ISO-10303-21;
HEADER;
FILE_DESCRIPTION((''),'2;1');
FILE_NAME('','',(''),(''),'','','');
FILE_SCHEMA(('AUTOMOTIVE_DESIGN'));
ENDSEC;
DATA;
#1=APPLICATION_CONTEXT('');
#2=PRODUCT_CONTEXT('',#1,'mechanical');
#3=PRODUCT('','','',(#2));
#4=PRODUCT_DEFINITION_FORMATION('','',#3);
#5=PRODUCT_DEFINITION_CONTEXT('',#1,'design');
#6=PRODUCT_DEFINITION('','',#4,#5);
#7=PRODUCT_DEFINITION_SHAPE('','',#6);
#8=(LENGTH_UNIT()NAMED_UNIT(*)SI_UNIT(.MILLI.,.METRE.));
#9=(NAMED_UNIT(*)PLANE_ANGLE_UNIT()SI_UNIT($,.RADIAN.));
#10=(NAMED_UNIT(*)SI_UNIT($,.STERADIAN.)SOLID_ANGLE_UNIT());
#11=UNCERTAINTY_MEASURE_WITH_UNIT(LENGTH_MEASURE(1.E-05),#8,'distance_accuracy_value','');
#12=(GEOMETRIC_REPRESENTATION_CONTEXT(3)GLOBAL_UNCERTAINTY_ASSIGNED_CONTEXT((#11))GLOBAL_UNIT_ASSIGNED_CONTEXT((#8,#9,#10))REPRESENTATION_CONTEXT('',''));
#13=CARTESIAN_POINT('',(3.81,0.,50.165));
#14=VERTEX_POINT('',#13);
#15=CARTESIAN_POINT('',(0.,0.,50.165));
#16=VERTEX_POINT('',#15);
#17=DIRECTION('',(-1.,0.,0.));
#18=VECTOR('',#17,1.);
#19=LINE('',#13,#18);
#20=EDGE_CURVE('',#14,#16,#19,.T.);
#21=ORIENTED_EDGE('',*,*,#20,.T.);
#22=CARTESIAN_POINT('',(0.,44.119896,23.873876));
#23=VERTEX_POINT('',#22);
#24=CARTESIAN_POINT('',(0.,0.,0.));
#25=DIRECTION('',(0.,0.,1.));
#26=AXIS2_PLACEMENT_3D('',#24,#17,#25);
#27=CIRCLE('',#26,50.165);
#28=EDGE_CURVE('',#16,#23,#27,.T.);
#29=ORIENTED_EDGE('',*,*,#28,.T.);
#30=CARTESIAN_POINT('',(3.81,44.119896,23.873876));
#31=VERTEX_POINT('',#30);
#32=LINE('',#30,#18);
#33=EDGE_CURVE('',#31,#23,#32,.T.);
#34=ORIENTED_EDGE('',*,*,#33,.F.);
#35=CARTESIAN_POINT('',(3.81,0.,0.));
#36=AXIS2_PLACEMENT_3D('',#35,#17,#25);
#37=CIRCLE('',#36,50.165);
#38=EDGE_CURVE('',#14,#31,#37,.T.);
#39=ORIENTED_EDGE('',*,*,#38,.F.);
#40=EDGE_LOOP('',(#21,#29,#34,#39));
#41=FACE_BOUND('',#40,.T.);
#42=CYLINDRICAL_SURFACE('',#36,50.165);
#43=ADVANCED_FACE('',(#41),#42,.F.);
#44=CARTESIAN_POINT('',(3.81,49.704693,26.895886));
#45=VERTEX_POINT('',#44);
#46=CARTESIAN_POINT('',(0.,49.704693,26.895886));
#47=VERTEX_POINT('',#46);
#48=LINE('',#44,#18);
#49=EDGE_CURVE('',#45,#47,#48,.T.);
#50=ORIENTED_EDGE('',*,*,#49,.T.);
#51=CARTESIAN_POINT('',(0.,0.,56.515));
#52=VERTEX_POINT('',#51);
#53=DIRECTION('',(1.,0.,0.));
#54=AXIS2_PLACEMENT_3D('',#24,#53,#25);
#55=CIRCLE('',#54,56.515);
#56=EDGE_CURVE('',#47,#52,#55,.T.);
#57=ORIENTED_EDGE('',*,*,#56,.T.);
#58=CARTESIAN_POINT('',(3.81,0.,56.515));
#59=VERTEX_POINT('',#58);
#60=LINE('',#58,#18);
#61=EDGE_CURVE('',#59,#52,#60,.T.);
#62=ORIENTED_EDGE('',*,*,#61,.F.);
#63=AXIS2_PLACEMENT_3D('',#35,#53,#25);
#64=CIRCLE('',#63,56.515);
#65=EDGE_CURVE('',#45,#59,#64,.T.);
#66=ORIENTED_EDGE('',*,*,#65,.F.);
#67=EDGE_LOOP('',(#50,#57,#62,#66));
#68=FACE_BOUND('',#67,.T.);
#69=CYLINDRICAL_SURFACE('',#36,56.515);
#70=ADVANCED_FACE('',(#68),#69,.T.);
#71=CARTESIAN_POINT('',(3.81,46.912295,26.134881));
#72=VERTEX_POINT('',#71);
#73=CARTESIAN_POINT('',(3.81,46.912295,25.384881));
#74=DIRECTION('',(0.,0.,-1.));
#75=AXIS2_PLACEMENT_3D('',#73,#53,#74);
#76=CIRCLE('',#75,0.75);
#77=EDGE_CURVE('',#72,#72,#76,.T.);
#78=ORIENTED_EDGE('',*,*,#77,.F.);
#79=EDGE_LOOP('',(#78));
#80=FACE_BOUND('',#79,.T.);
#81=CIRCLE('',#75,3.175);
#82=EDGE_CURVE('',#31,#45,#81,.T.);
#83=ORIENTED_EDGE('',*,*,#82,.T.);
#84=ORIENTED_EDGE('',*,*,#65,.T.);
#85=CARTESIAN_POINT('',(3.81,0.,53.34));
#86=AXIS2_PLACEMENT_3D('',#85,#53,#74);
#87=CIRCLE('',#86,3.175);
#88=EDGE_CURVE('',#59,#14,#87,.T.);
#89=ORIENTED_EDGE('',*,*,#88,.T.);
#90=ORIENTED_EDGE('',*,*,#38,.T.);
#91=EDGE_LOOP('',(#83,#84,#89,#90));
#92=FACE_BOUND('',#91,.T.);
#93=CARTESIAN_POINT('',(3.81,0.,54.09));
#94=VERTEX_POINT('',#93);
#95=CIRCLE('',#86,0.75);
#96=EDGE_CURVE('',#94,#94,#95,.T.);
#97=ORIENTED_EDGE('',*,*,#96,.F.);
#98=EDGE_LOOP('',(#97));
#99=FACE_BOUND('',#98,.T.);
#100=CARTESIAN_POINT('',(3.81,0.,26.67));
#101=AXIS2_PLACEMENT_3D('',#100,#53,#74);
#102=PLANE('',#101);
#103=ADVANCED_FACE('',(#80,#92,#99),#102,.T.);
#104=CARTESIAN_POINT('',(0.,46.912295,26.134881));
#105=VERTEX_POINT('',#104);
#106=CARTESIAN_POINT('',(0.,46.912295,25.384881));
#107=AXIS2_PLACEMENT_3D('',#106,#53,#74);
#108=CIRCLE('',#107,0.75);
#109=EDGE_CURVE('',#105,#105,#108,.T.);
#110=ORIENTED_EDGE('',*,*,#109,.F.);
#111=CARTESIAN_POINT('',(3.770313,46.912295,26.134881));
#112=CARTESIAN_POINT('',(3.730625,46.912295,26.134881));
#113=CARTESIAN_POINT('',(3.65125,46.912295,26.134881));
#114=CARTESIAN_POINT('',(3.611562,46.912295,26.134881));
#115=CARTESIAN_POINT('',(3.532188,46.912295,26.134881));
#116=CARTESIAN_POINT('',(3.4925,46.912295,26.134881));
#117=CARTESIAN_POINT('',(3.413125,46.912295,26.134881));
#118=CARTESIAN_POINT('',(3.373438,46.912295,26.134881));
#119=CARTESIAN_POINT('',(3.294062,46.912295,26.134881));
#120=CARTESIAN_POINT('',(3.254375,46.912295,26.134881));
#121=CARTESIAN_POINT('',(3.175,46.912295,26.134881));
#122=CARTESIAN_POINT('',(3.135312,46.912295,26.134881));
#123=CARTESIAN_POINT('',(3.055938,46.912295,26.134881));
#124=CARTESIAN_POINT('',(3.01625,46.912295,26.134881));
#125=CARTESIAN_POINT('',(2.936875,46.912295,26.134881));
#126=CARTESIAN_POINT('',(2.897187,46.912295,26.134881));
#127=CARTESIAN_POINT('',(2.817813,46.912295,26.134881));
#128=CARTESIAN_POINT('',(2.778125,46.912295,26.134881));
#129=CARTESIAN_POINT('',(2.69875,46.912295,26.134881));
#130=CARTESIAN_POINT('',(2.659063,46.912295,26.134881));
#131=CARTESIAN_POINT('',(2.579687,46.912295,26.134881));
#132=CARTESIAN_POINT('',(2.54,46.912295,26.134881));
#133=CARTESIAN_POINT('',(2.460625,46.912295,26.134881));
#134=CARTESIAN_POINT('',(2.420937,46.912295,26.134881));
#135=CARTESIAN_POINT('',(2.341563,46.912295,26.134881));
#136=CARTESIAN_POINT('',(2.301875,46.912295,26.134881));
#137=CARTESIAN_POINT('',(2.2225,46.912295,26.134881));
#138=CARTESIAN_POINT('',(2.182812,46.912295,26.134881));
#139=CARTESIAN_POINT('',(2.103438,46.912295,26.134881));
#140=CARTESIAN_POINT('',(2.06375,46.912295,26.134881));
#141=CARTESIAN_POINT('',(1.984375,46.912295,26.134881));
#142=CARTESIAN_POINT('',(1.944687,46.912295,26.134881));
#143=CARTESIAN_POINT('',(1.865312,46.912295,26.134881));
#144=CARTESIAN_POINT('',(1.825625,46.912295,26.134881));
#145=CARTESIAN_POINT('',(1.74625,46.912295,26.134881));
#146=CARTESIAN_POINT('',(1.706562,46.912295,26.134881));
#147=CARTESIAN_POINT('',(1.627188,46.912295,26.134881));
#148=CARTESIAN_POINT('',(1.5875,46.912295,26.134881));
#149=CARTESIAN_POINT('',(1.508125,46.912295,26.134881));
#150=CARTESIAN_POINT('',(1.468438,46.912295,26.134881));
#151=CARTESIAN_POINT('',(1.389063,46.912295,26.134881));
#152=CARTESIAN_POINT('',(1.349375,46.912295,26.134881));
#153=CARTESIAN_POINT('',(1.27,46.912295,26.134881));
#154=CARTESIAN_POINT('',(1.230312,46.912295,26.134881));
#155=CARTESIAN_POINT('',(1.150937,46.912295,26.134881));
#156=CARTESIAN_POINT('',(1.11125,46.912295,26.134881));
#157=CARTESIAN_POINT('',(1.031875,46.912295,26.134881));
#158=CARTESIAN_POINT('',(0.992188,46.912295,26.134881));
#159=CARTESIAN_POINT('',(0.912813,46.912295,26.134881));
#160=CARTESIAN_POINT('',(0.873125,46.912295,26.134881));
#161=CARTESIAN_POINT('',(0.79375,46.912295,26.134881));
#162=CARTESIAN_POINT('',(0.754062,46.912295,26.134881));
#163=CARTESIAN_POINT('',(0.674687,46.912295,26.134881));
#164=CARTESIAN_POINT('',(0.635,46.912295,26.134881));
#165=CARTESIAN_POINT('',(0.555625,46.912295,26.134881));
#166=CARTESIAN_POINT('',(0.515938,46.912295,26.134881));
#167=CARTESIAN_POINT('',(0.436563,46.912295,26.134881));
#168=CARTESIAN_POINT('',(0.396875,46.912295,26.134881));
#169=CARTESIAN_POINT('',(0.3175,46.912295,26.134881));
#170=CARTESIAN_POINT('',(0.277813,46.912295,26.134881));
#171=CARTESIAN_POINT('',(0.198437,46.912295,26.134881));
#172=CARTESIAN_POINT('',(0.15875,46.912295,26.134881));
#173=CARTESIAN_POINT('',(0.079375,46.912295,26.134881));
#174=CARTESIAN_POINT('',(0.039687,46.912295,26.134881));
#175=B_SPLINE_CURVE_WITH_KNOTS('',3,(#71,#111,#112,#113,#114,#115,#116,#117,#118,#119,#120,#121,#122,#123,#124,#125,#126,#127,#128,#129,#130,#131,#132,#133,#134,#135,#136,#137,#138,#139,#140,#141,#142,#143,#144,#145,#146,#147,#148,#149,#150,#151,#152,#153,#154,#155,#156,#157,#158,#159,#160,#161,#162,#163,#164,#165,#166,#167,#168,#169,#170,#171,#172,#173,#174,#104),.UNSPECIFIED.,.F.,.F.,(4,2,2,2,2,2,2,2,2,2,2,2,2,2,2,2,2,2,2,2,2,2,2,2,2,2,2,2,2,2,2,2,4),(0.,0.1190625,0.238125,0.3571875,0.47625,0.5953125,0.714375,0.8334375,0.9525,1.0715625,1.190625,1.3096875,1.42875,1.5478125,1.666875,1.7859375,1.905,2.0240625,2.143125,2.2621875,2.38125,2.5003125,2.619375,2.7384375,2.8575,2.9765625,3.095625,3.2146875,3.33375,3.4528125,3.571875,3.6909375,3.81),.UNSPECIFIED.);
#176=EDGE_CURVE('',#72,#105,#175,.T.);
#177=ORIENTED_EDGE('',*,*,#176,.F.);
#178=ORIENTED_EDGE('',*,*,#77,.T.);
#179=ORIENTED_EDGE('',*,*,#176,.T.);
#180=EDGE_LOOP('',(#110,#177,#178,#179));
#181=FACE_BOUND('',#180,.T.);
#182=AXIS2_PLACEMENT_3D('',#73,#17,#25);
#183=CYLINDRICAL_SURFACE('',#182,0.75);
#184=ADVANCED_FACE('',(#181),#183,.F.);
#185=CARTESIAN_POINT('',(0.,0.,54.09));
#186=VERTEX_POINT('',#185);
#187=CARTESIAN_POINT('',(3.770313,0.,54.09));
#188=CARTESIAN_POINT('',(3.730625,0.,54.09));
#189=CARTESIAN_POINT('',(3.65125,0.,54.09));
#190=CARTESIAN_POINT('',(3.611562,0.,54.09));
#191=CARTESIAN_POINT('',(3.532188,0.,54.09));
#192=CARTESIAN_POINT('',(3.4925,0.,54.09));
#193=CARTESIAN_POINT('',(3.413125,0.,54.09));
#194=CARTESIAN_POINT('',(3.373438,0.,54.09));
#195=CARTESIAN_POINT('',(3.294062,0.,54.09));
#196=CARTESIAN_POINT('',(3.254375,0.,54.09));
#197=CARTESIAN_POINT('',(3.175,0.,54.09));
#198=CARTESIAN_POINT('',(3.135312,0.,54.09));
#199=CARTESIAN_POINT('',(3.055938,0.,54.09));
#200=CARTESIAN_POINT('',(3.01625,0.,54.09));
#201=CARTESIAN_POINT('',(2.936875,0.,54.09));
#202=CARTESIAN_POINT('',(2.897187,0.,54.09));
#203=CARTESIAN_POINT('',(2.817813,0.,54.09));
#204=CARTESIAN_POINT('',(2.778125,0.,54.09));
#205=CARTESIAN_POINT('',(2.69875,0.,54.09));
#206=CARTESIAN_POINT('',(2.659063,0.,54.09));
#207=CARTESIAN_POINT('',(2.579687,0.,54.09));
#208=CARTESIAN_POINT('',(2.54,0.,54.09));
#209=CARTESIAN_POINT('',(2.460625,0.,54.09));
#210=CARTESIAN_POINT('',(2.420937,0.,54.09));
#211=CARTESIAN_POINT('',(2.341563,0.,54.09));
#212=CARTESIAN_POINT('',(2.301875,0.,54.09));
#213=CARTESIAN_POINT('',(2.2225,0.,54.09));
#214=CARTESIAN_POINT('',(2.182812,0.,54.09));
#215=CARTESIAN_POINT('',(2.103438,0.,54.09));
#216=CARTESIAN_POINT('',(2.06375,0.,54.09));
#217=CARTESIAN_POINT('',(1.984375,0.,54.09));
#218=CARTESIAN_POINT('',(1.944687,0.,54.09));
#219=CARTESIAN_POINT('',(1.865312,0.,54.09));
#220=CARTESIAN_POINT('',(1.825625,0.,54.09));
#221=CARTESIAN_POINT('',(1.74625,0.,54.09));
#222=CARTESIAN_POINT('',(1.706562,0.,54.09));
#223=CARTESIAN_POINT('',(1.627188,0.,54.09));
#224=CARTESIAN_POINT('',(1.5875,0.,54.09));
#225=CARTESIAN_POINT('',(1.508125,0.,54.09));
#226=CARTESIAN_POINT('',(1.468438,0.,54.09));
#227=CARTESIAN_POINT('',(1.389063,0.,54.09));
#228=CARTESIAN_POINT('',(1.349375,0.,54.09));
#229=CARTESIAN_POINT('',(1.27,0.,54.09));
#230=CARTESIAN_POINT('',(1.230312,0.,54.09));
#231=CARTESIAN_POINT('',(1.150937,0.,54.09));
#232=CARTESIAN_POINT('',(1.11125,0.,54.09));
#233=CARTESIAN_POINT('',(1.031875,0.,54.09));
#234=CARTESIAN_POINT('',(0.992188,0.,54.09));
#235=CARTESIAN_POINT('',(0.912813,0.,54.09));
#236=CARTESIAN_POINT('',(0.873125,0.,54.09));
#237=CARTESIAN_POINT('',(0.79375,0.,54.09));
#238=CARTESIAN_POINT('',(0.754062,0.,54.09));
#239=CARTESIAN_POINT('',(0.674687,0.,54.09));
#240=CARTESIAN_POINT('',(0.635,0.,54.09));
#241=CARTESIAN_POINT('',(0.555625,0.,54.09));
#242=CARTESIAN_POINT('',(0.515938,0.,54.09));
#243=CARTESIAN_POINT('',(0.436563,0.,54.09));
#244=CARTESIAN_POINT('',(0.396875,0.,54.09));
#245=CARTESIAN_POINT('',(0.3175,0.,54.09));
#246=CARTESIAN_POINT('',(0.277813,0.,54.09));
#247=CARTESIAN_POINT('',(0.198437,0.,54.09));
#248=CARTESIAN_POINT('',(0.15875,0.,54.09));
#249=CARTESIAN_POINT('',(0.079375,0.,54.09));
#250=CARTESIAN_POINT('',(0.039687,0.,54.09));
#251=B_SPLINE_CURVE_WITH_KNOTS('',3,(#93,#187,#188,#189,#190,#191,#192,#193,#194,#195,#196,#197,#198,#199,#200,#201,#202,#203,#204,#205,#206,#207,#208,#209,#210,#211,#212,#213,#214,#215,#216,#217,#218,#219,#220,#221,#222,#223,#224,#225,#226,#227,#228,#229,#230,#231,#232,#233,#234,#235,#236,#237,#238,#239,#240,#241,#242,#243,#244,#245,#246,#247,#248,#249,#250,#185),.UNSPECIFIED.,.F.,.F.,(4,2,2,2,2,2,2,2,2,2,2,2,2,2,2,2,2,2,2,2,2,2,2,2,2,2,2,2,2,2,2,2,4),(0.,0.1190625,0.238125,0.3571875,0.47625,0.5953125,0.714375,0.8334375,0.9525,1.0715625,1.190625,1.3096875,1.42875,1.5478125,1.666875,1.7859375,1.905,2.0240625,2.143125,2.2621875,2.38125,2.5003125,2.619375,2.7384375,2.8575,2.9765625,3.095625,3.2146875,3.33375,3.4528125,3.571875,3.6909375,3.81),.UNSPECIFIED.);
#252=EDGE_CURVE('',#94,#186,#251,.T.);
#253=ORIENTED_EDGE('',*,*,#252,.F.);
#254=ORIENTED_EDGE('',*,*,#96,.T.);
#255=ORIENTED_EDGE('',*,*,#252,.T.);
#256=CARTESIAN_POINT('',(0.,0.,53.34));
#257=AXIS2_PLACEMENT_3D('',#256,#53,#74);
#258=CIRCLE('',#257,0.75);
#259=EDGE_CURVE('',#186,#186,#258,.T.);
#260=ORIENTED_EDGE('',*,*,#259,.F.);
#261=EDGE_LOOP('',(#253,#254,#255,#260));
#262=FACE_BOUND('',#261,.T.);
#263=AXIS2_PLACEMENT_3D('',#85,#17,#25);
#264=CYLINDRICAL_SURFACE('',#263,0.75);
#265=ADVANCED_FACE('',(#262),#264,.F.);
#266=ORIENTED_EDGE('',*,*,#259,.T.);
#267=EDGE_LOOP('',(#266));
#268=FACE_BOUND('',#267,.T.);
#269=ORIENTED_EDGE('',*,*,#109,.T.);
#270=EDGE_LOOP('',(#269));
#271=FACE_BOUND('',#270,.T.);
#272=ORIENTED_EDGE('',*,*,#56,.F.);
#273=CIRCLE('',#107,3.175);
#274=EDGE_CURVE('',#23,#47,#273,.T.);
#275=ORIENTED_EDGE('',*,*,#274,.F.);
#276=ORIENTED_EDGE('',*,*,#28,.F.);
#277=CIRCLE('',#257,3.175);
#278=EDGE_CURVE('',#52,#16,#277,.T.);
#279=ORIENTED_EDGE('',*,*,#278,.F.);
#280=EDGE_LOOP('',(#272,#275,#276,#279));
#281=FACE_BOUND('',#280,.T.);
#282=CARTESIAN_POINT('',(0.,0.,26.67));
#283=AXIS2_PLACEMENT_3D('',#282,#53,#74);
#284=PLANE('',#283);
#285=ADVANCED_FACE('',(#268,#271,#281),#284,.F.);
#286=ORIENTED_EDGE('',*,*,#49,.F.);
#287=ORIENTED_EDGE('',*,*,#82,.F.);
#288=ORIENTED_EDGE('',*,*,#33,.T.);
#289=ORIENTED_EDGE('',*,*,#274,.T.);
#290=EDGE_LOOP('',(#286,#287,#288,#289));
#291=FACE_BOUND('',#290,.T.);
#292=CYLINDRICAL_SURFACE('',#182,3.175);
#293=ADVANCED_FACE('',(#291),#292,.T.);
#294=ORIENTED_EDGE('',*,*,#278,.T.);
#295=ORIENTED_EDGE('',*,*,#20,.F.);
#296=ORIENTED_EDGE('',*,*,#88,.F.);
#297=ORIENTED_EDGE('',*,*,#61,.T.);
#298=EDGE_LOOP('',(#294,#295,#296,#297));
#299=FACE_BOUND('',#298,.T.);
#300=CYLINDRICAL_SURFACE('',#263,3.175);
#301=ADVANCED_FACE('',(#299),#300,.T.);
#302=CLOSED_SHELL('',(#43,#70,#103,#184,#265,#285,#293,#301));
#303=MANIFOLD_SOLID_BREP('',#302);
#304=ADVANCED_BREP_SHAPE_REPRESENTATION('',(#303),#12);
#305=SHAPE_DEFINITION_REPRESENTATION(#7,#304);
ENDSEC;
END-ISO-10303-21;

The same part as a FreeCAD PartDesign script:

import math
import FreeCAD as App
import Part
import Sketcher
Q = App.Units.Quantity

doc = App.newDocument("Part")
body = doc.addObject("PartDesign::Body", "Body")

# Sketch on YZ plane
sketch1 = doc.addObject("Sketcher::SketchObject", "Sketch")
body.addObject(sketch1)
sketch1.AttachmentSupport = (doc.YZ_Plane, [""])
sketch1.MapMode = "FlatFace"
sketch1.addGeometry([
    Part.ArcOfCircle(Part.Circle(App.Vector(0, 0, 0), App.Vector(0, 0, 1), 50.2), math.radians(28), math.radians(90)),  # 0
    Part.ArcOfCircle(Part.Circle(App.Vector(46.9, 25.4, 0), App.Vector(0, 0, 1), 3.2), math.radians(-152), math.radians(28)),  # 1
    Part.ArcOfCircle(Part.Circle(App.Vector(0, 0, 0), App.Vector(0, 0, 1), 56.5), math.radians(28), math.radians(90)),  # 2
    Part.ArcOfCircle(Part.Circle(App.Vector(0, 53.3, 0), App.Vector(0, 0, 1), 3.2), math.radians(90), math.radians(270)),  # 3
    Part.Circle(App.Vector(0, 53.3, 0), App.Vector(0, 0, 1), 0.8),  # 4
    Part.Circle(App.Vector(46.9, 25.4, 0), App.Vector(0, 0, 1), 0.8),  # 5
], False)
sketch1.addConstraint([
    Sketcher.Constraint("Tangent", 0, 1, 1, 1),
    Sketcher.Constraint("Tangent", 1, 2, 2, 1),
    Sketcher.Constraint("Tangent", 2, 2, 3, 1),
    Sketcher.Constraint("Tangent", 3, 2, 0, 2),
    Sketcher.Constraint("Coincident", 0, 3, -1, 1),
    Sketcher.Constraint("Coincident", 2, 3, -1, 1),
    Sketcher.Constraint("Coincident", 4, 3, 3, 3),
    Sketcher.Constraint("Coincident", 5, 3, 1, 3),
    Sketcher.Constraint("Equal", 4, 5),
    Sketcher.Constraint("PointOnObject", 3, 3, -2),
    Sketcher.Constraint("Radius", 0, Q("1.975 in")),
    Sketcher.Constraint("Radius", 1, Q("0.125 in")),
    Sketcher.Constraint("Diameter", 4, 1.5),
    Sketcher.Constraint("DistanceX", 1, 3, 1, 2, 2.792399),
])
pad1 = doc.addObject("PartDesign::Pad", "Pad")
body.addObject(pad1)
pad1.Profile = sketch1
pad1.Length = Q("0.15 in")

doc.recompute()
